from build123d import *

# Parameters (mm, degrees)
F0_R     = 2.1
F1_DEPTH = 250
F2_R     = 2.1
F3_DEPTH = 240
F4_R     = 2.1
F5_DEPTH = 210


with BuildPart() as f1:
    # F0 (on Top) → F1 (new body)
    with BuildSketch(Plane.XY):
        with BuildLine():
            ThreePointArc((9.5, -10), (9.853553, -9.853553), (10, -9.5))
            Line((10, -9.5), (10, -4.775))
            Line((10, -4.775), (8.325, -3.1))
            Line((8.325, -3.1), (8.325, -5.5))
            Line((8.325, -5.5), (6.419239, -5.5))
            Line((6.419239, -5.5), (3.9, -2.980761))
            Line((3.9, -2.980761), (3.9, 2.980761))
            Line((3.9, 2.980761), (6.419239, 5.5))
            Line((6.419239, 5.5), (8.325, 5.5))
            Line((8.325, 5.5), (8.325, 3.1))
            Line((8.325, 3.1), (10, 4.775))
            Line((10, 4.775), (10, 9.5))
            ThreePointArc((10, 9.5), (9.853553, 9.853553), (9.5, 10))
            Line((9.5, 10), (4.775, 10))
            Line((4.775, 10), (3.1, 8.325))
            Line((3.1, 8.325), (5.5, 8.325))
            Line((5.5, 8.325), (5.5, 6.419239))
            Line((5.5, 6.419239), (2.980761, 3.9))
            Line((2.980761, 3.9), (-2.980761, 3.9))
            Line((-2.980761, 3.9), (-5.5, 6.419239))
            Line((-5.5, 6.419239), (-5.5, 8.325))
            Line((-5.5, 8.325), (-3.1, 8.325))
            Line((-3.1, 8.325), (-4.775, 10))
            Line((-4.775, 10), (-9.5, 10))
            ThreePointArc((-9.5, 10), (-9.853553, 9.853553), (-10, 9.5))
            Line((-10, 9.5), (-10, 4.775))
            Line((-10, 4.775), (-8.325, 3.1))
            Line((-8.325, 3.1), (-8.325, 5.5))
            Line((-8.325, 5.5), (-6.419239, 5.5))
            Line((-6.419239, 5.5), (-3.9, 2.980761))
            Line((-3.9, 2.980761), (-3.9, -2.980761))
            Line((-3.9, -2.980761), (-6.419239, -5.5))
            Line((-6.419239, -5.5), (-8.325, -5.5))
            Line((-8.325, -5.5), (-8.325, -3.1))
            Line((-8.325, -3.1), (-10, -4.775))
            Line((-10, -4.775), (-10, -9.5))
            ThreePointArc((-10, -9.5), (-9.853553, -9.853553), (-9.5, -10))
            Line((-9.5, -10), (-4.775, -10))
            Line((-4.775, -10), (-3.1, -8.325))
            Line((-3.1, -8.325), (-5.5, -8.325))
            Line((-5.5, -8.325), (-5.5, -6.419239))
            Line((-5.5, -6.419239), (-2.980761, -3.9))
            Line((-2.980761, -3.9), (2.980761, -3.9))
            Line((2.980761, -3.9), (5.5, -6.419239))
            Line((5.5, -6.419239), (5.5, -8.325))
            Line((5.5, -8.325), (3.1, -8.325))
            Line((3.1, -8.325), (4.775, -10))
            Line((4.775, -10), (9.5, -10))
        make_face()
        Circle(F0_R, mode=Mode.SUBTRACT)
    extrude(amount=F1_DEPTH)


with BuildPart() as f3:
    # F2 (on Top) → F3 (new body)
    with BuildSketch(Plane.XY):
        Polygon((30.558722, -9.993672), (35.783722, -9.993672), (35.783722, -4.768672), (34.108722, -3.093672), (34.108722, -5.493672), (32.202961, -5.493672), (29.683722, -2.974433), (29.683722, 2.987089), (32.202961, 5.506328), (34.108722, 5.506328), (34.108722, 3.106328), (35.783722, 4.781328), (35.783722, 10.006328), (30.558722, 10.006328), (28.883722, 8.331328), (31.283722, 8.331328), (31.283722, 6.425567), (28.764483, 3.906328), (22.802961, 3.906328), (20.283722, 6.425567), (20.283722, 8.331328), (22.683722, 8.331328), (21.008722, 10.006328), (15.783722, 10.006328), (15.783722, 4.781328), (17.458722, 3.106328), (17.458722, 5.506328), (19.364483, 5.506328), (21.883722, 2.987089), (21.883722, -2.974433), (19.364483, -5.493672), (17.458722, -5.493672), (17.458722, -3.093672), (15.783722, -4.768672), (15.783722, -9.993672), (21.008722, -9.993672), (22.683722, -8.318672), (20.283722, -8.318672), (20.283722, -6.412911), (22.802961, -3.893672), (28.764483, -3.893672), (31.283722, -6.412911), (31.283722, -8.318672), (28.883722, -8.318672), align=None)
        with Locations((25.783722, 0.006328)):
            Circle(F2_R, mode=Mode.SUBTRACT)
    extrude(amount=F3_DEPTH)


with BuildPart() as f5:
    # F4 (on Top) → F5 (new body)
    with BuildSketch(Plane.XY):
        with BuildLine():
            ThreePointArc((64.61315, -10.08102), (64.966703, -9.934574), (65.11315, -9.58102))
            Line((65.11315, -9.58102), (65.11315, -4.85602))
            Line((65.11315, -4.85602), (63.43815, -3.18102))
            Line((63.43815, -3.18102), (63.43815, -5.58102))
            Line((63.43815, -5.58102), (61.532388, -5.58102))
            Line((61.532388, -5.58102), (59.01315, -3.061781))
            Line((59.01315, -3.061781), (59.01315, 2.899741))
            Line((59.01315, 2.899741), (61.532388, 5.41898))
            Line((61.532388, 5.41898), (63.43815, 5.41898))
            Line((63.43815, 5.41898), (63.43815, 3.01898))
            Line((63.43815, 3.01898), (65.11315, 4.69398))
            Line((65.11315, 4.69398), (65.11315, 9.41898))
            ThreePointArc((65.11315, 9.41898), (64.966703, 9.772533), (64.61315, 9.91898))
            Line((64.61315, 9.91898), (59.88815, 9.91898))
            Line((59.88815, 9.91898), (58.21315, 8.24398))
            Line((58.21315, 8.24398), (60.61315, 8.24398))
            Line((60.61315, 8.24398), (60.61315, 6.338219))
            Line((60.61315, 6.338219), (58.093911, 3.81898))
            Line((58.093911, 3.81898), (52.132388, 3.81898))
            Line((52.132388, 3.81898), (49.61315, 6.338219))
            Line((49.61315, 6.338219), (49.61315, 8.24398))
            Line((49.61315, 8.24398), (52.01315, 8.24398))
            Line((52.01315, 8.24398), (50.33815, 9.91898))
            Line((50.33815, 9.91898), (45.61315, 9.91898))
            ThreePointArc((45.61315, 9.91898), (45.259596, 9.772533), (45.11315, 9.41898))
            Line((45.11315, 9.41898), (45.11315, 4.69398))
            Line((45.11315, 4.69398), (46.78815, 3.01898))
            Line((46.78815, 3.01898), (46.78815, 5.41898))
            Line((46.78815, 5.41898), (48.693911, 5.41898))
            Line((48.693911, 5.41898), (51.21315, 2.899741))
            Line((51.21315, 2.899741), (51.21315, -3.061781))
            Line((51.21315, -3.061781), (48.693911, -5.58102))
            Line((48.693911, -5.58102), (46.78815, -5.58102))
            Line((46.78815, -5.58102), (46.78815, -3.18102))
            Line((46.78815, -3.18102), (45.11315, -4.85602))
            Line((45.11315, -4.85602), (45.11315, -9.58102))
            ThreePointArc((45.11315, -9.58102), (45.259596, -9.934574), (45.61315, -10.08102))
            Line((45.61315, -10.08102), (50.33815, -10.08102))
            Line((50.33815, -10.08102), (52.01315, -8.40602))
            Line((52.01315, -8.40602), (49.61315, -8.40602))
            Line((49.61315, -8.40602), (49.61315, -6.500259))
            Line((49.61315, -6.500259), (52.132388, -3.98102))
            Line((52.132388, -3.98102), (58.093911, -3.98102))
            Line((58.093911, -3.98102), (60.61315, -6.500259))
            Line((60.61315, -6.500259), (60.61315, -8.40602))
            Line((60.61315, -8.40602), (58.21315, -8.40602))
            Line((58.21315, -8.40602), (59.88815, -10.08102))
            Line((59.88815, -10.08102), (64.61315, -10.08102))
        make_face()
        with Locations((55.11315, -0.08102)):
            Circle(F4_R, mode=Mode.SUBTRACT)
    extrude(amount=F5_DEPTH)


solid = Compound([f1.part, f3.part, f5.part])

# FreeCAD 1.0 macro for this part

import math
import FreeCAD as App
import Part
import Sketcher

doc = App.newDocument("Part")
body = doc.addObject("PartDesign::Body", "Body")

sketch1 = doc.addObject("Sketcher::SketchObject", "Sketch")
body.addObject(sketch1)
sketch1.AttachmentSupport = (doc.XY_Plane, [""])
sketch1.MapMode = "FlatFace"
sketch1.addGeometry([
    Part.ArcOfCircle(Part.Circle(App.Vector(9.5, -9.5, 0), App.Vector(0, 0, 1), 0.5), math.radians(-90), math.radians(0)),
    Part.LineSegment(App.Vector(10, -9.5, 0), App.Vector(10, -4.8, 0)),
    Part.LineSegment(App.Vector(10, -4.8, 0), App.Vector(8.3, -3.1, 0)),
    Part.LineSegment(App.Vector(8.3, -3.1, 0), App.Vector(8.3, -5.5, 0)),
    Part.LineSegment(App.Vector(8.3, -5.5, 0), App.Vector(6.4, -5.5, 0)),
    Part.LineSegment(App.Vector(6.4, -5.5, 0), App.Vector(3.9, -3, 0)),
    Part.LineSegment(App.Vector(3.9, -3, 0), App.Vector(3.9, 3, 0)),
    Part.LineSegment(App.Vector(3.9, 3, 0), App.Vector(6.4, 5.5, 0)),
    Part.LineSegment(App.Vector(6.4, 5.5, 0), App.Vector(8.3, 5.5, 0)),
    Part.LineSegment(App.Vector(8.3, 5.5, 0), App.Vector(8.3, 3.1, 0)),
    Part.LineSegment(App.Vector(8.3, 3.1, 0), App.Vector(10, 4.8, 0)),
    Part.LineSegment(App.Vector(10, 4.8, 0), App.Vector(10, 9.5, 0)),
    Part.ArcOfCircle(Part.Circle(App.Vector(9.5, 9.5, 0), App.Vector(0, 0, 1), 0.5), math.radians(0), math.radians(90)),
    Part.LineSegment(App.Vector(9.5, 10, 0), App.Vector(4.8, 10, 0)),
    Part.LineSegment(App.Vector(4.8, 10, 0), App.Vector(3.1, 8.3, 0)),
    Part.LineSegment(App.Vector(3.1, 8.3, 0), App.Vector(5.5, 8.3, 0)),
    Part.LineSegment(App.Vector(5.5, 8.3, 0), App.Vector(5.5, 6.4, 0)),
    Part.LineSegment(App.Vector(5.5, 6.4, 0), App.Vector(3, 3.9, 0)),
    Part.LineSegment(App.Vector(3, 3.9, 0), App.Vector(-3, 3.9, 0)),
    Part.LineSegment(App.Vector(-3, 3.9, 0), App.Vector(-5.5, 6.4, 0)),
    Part.LineSegment(App.Vector(-5.5, 6.4, 0), App.Vector(-5.5, 8.3, 0)),
    Part.LineSegment(App.Vector(-5.5, 8.3, 0), App.Vector(-3.1, 8.3, 0)),
    Part.LineSegment(App.Vector(-3.1, 8.3, 0), App.Vector(-4.8, 10, 0)),
    Part.LineSegment(App.Vector(-4.8, 10, 0), App.Vector(-9.5, 10, 0)),
    Part.ArcOfCircle(Part.Circle(App.Vector(-9.5, 9.5, 0), App.Vector(0, 0, 1), 0.5), math.radians(90), math.radians(180)),
    Part.LineSegment(App.Vector(-10, 9.5, 0), App.Vector(-10, 4.8, 0)),
    Part.LineSegment(App.Vector(-10, 4.8, 0), App.Vector(-8.3, 3.1, 0)),
    Part.LineSegment(App.Vector(-8.3, 3.1, 0), App.Vector(-8.3, 5.5, 0)),
    Part.LineSegment(App.Vector(-8.3, 5.5, 0), App.Vector(-6.4, 5.5, 0)),
    Part.LineSegment(App.Vector(-6.4, 5.5, 0), App.Vector(-3.9, 3, 0)),
    Part.LineSegment(App.Vector(-3.9, 3, 0), App.Vector(-3.9, -3, 0)),
    Part.LineSegment(App.Vector(-3.9, -3, 0), App.Vector(-6.4, -5.5, 0)),
    Part.LineSegment(App.Vector(-6.4, -5.5, 0), App.Vector(-8.3, -5.5, 0)),
    Part.LineSegment(App.Vector(-8.3, -5.5, 0), App.Vector(-8.3, -3.1, 0)),
    Part.LineSegment(App.Vector(-8.3, -3.1, 0), App.Vector(-10, -4.8, 0)),
    Part.LineSegment(App.Vector(-10, -4.8, 0), App.Vector(-10, -9.5, 0)),
    Part.ArcOfCircle(Part.Circle(App.Vector(-9.5, -9.5, 0), App.Vector(0, 0, 1), 0.5), math.radians(-180), math.radians(-90)),
    Part.LineSegment(App.Vector(-9.5, -10, 0), App.Vector(-4.8, -10, 0)),
    Part.LineSegment(App.Vector(-4.8, -10, 0), App.Vector(-3.1, -8.3, 0)),
    Part.LineSegment(App.Vector(-3.1, -8.3, 0), App.Vector(-5.5, -8.3, 0)),
    Part.LineSegment(App.Vector(-5.5, -8.3, 0), App.Vector(-5.5, -6.4, 0)),
    Part.LineSegment(App.Vector(-5.5, -6.4, 0), App.Vector(-3, -3.9, 0)),
    Part.LineSegment(App.Vector(-3, -3.9, 0), App.Vector(3, -3.9, 0)),
    Part.LineSegment(App.Vector(3, -3.9, 0), App.Vector(5.5, -6.4, 0)),
    Part.LineSegment(App.Vector(5.5, -6.4, 0), App.Vector(5.5, -8.3, 0)),
    Part.LineSegment(App.Vector(5.5, -8.3, 0), App.Vector(3.1, -8.3, 0)),
    Part.LineSegment(App.Vector(3.1, -8.3, 0), App.Vector(4.8, -10, 0)),
    Part.LineSegment(App.Vector(4.8, -10, 0), App.Vector(9.5, -10, 0)),
    Part.Circle(App.Vector(0, 0, 0), App.Vector(0, 0, 1), 2.1),
], False)
sketch1.addConstraint([
    Sketcher.Constraint("Coincident", 0, 2, 1, 1),
    Sketcher.Constraint("Coincident", 1, 2, 2, 1),
    Sketcher.Constraint("Coincident", 2, 2, 3, 1),
    Sketcher.Constraint("Coincident", 3, 2, 4, 1),
    Sketcher.Constraint("Coincident", 4, 2, 5, 1),
    Sketcher.Constraint("Coincident", 5, 2, 6, 1),
    Sketcher.Constraint("Coincident", 6, 2, 7, 1),
    Sketcher.Constraint("Coincident", 7, 2, 8, 1),
    Sketcher.Constraint("Coincident", 8, 2, 9, 1),
    Sketcher.Constraint("Coincident", 9, 2, 10, 1),
    Sketcher.Constraint("Coincident", 10, 2, 11, 1),
    Sketcher.Constraint("Coincident", 11, 2, 12, 1),
    Sketcher.Constraint("Coincident", 12, 2, 13, 1),
    Sketcher.Constraint("Coincident", 13, 2, 14, 1),
    Sketcher.Constraint("Coincident", 14, 2, 15, 1),
    Sketcher.Constraint("Coincident", 15, 2, 16, 1),
    Sketcher.Constraint("Coincident", 16, 2, 17, 1),
    Sketcher.Constraint("Coincident", 17, 2, 18, 1),
    Sketcher.Constraint("Coincident", 18, 2, 19, 1),
    Sketcher.Constraint("Coincident", 19, 2, 20, 1),
    Sketcher.Constraint("Coincident", 20, 2, 21, 1),
    Sketcher.Constraint("Coincident", 21, 2, 22, 1),
    Sketcher.Constraint("Coincident", 22, 2, 23, 1),
    Sketcher.Constraint("Coincident", 23, 2, 24, 1),
    Sketcher.Constraint("Coincident", 24, 2, 25, 1),
    Sketcher.Constraint("Coincident", 25, 2, 26, 1),
    Sketcher.Constraint("Coincident", 26, 2, 27, 1),
    Sketcher.Constraint("Coincident", 27, 2, 28, 1),
    Sketcher.Constraint("Coincident", 28, 2, 29, 1),
    Sketcher.Constraint("Coincident", 29, 2, 30, 1),
    Sketcher.Constraint("Coincident", 30, 2, 31, 1),
    Sketcher.Constraint("Coincident", 31, 2, 32, 1),
    Sketcher.Constraint("Coincident", 32, 2, 33, 1),
    Sketcher.Constraint("Coincident", 33, 2, 34, 1),
    Sketcher.Constraint("Coincident", 34, 2, 35, 1),
    Sketcher.Constraint("Coincident", 35, 2, 36, 1),
    Sketcher.Constraint("Coincident", 36, 2, 37, 1),
    Sketcher.Constraint("Coincident", 37, 2, 38, 1),
    Sketcher.Constraint("Coincident", 38, 2, 39, 1),
    Sketcher.Constraint("Coincident", 39, 2, 40, 1),
    Sketcher.Constraint("Coincident", 40, 2, 41, 1),
    Sketcher.Constraint("Coincident", 41, 2, 42, 1),
    Sketcher.Constraint("Coincident", 42, 2, 43, 1),
    Sketcher.Constraint("Coincident", 43, 2, 44, 1),
    Sketcher.Constraint("Coincident", 44, 2, 45, 1),
    Sketcher.Constraint("Coincident", 45, 2, 46, 1),
    Sketcher.Constraint("Coincident", 46, 2, 47, 1),
    Sketcher.Constraint("Coincident", 47, 2, 0, 1),
    Sketcher.Constraint("Vertical", 1),
    Sketcher.Constraint("Vertical", 3),
    Sketcher.Constraint("Horizontal", 4),
    Sketcher.Constraint("Vertical", 6),
    Sketcher.Constraint("Horizontal", 8),
    Sketcher.Constraint("Vertical", 9),
    Sketcher.Constraint("Vertical", 11),
    Sketcher.Constraint("Horizontal", 13),
    Sketcher.Constraint("Horizontal", 15),
    Sketcher.Constraint("Vertical", 16),
    Sketcher.Constraint("Horizontal", 18),
    Sketcher.Constraint("Vertical", 20),
    Sketcher.Constraint("Horizontal", 21),
    Sketcher.Constraint("Horizontal", 23),
    Sketcher.Constraint("Vertical", 25),
    Sketcher.Constraint("Vertical", 27),
    Sketcher.Constraint("Horizontal", 28),
    Sketcher.Constraint("Vertical", 30),
    Sketcher.Constraint("Horizontal", 32),
    Sketcher.Constraint("Vertical", 33),
    Sketcher.Constraint("Vertical", 35),
    Sketcher.Constraint("Horizontal", 37),
    Sketcher.Constraint("Horizontal", 39),
    Sketcher.Constraint("Vertical", 40),
    Sketcher.Constraint("Horizontal", 42),
    Sketcher.Constraint("Vertical", 44),
    Sketcher.Constraint("Horizontal", 45),
    Sketcher.Constraint("Horizontal", 47),
    Sketcher.Constraint("Coincident", 48, 3, -1, 1),
    Sketcher.Constraint("Equal", 0, 12),
    Sketcher.Constraint("Equal", 12, 24),
    Sketcher.Constraint("Equal", 24, 36),
    Sketcher.Constraint("Symmetric", 0, 3, 24, 3, -1, 1),
    Sketcher.Constraint("Symmetric", 12, 3, 36, 3, -1, 1),
    Sketcher.Constraint("Symmetric", 2, 2, 26, 2, -1, 1),
    Sketcher.Constraint("Symmetric", 4, 2, 28, 2, -1, 1),
    Sketcher.Constraint("Symmetric", 5, 2, 29, 2, -1, 1),
    Sketcher.Constraint("Symmetric", 7, 2, 31, 2, -1, 1),
    Sketcher.Constraint("Symmetric", 9, 2, 33, 2, -1, 1),
    Sketcher.Constraint("Symmetric", 14, 2, 38, 2, -1, 1),
    Sketcher.Constraint("Symmetric", 16, 2, 40, 2, -1, 1),
    Sketcher.Constraint("Symmetric", 17, 2, 41, 2, -1, 1),
    Sketcher.Constraint("Symmetric", 19, 2, 43, 2, -1, 1),
    Sketcher.Constraint("Symmetric", 21, 2, 45, 2, -1, 1),
    Sketcher.Constraint("Symmetric", 12, 3, 24, 3, -2),
    Sketcher.Constraint("Symmetric", 16, 2, 19, 2, -2),
    Sketcher.Constraint("Symmetric", 14, 2, 21, 2, -2),
    Sketcher.Constraint("Symmetric", 9, 2, 26, 2, -2),
    Sketcher.Constraint("Symmetric", 7, 2, 28, 2, -2),
    Sketcher.Constraint("Parallel", 2, 5),
    Sketcher.Constraint("Perpendicular", 5, 7),
    Sketcher.Constraint("Parallel", 7, 10),
    Sketcher.Constraint("Parallel", 10, 14),
    Sketcher.Constraint("Parallel", 14, 17),
    Sketcher.Constraint("Perpendicular", 17, 19),
    Sketcher.Constraint("Parallel", 19, 22),
    Sketcher.Constraint("Parallel", 22, 26),
    Sketcher.Constraint("Perpendicular", 29, 31),
    Sketcher.Constraint("Parallel", 31, 34),
    Sketcher.Constraint("Parallel", 34, 38),
    Sketcher.Constraint("Perpendicular", 41, 43),
    Sketcher.Constraint("Parallel", 43, 46),
    Sketcher.Constraint("Horizontal", 36, 3, 0, 2),
    Sketcher.Constraint("Horizontal", 24, 3, 11, 2),
    Sketcher.Constraint("Horizontal", 11, 2, 24, 2),
    Sketcher.Constraint("Horizontal", 10, 2, 25, 2),
    Sketcher.Constraint("Horizontal", 0, 2, 35, 2),
    Sketcher.Constraint("Vertical", 0, 3, 12, 2),
    Sketcher.Constraint("Vertical", 36, 3, 23, 2),
    Sketcher.Constraint("Vertical", 23, 2, 36, 2),
    Sketcher.Constraint("Vertical", 12, 2, 47, 2),
    Sketcher.Constraint("Equal", 47, 1),
    Sketcher.Constraint("Equal", 45, 3),
    Sketcher.Constraint("Equal", 42, 6),
    Sketcher.Constraint("Equal", 32, 16),
    Sketcher.Constraint("Equal", 10, 14),
    Sketcher.Constraint("Equal", 7, 17),
    Sketcher.Constraint("Diameter", 48, 4.2),
    Sketcher.Constraint("Radius", 0, 0.500001),
    Sketcher.Constraint("DistanceX", 15, 1, 15, 2, 2.4),
    Sketcher.Constraint("DistanceX", -1, 1, 0, 2, 10.0),
    Sketcher.Constraint("DistanceY", 0, 3, 3, 2, 3.999999),
    Sketcher.Constraint("DistanceX", -1, 1, 5, 2, 3.9),
    Sketcher.Constraint("DistanceX", 13, 2, 13, 1, 4.725),
    Sketcher.Constraint("DistanceX", 4, 2, 4, 1, 1.905761),
])
pad1 = doc.addObject("PartDesign::Pad", "Pad")
body.addObject(pad1)
pad1.Profile = sketch1
pad1.Length = 250
body2 = doc.addObject("PartDesign::Body", "Body001")

sketch2 = doc.addObject("Sketcher::SketchObject", "Sketch001")
body2.addObject(sketch2)
sketch2.AttachmentSupport = (doc.getObject("XY_Plane001"), [""])
sketch2.MapMode = "FlatFace"
sketch2.addGeometry([
    Part.LineSegment(App.Vector(30.6, -10, 0), App.Vector(35.8, -10, 0)),
    Part.LineSegment(App.Vector(35.8, -10, 0), App.Vector(35.8, -4.8, 0)),
    Part.LineSegment(App.Vector(35.8, -4.8, 0), App.Vector(34.1, -3.1, 0)),
    Part.LineSegment(App.Vector(34.1, -3.1, 0), App.Vector(34.1, -5.5, 0)),
    Part.LineSegment(App.Vector(34.1, -5.5, 0), App.Vector(32.2, -5.5, 0)),
    Part.LineSegment(App.Vector(32.2, -5.5, 0), App.Vector(29.7, -3, 0)),
    Part.LineSegment(App.Vector(29.7, -3, 0), App.Vector(29.7, 3, 0)),
    Part.LineSegment(App.Vector(29.7, 3, 0), App.Vector(32.2, 5.5, 0)),
    Part.LineSegment(App.Vector(32.2, 5.5, 0), App.Vector(34.1, 5.5, 0)),
    Part.LineSegment(App.Vector(34.1, 5.5, 0), App.Vector(34.1, 3.1, 0)),
    Part.LineSegment(App.Vector(34.1, 3.1, 0), App.Vector(35.8, 4.8, 0)),
    Part.LineSegment(App.Vector(35.8, 4.8, 0), App.Vector(35.8, 10, 0)),
    Part.LineSegment(App.Vector(35.8, 10, 0), App.Vector(30.6, 10, 0)),
    Part.LineSegment(App.Vector(30.6, 10, 0), App.Vector(28.9, 8.3, 0)),
    Part.LineSegment(App.Vector(28.9, 8.3, 0), App.Vector(31.3, 8.3, 0)),
    Part.LineSegment(App.Vector(31.3, 8.3, 0), App.Vector(31.3, 6.4, 0)),
    Part.LineSegment(App.Vector(31.3, 6.4, 0), App.Vector(28.8, 3.9, 0)),
    Part.LineSegment(App.Vector(28.8, 3.9, 0), App.Vector(22.8, 3.9, 0)),
    Part.LineSegment(App.Vector(22.8, 3.9, 0), App.Vector(20.3, 6.4, 0)),
    Part.LineSegment(App.Vector(20.3, 6.4, 0), App.Vector(20.3, 8.3, 0)),
    Part.LineSegment(App.Vector(20.3, 8.3, 0), App.Vector(22.7, 8.3, 0)),
    Part.LineSegment(App.Vector(22.7, 8.3, 0), App.Vector(21, 10, 0)),
    Part.LineSegment(App.Vector(21, 10, 0), App.Vector(15.8, 10, 0)),
    Part.LineSegment(App.Vector(15.8, 10, 0), App.Vector(15.8, 4.8, 0)),
    Part.LineSegment(App.Vector(15.8, 4.8, 0), App.Vector(17.5, 3.1, 0)),
    Part.LineSegment(App.Vector(17.5, 3.1, 0), App.Vector(17.5, 5.5, 0)),
    Part.LineSegment(App.Vector(17.5, 5.5, 0), App.Vector(19.4, 5.5, 0)),
    Part.LineSegment(App.Vector(19.4, 5.5, 0), App.Vector(21.9, 3, 0)),
    Part.LineSegment(App.Vector(21.9, 3, 0), App.Vector(21.9, -3, 0)),
    Part.LineSegment(App.Vector(21.9, -3, 0), App.Vector(19.4, -5.5, 0)),
    Part.LineSegment(App.Vector(19.4, -5.5, 0), App.Vector(17.5, -5.5, 0)),
    Part.LineSegment(App.Vector(17.5, -5.5, 0), App.Vector(17.5, -3.1, 0)),
    Part.LineSegment(App.Vector(17.5, -3.1, 0), App.Vector(15.8, -4.8, 0)),
    Part.LineSegment(App.Vector(15.8, -4.8, 0), App.Vector(15.8, -10, 0)),
    Part.LineSegment(App.Vector(15.8, -10, 0), App.Vector(21, -10, 0)),
    Part.LineSegment(App.Vector(21, -10, 0), App.Vector(22.7, -8.3, 0)),
    Part.LineSegment(App.Vector(22.7, -8.3, 0), App.Vector(20.3, -8.3, 0)),
    Part.LineSegment(App.Vector(20.3, -8.3, 0), App.Vector(20.3, -6.4, 0)),
    Part.LineSegment(App.Vector(20.3, -6.4, 0), App.Vector(22.8, -3.9, 0)),
    Part.LineSegment(App.Vector(22.8, -3.9, 0), App.Vector(28.8, -3.9, 0)),
    Part.LineSegment(App.Vector(28.8, -3.9, 0), App.Vector(31.3, -6.4, 0)),
    Part.LineSegment(App.Vector(31.3, -6.4, 0), App.Vector(31.3, -8.3, 0)),
    Part.LineSegment(App.Vector(31.3, -8.3, 0), App.Vector(28.9, -8.3, 0)),
    Part.LineSegment(App.Vector(28.9, -8.3, 0), App.Vector(30.6, -10, 0)),
    Part.Circle(App.Vector(25.8, 0, 0), App.Vector(0, 0, 1), 2.1),
], False)
sketch2.addConstraint([
    Sketcher.Constraint("Coincident", 0, 2, 1, 1),
    Sketcher.Constraint("Coincident", 1, 2, 2, 1),
    Sketcher.Constraint("Coincident", 2, 2, 3, 1),
    Sketcher.Constraint("Coincident", 3, 2, 4, 1),
    Sketcher.Constraint("Coincident", 4, 2, 5, 1),
    Sketcher.Constraint("Coincident", 5, 2, 6, 1),
    Sketcher.Constraint("Coincident", 6, 2, 7, 1),
    Sketcher.Constraint("Coincident", 7, 2, 8, 1),
    Sketcher.Constraint("Coincident", 8, 2, 9, 1),
    Sketcher.Constraint("Coincident", 9, 2, 10, 1),
    Sketcher.Constraint("Coincident", 10, 2, 11, 1),
    Sketcher.Constraint("Coincident", 11, 2, 12, 1),
    Sketcher.Constraint("Coincident", 12, 2, 13, 1),
    Sketcher.Constraint("Coincident", 13, 2, 14, 1),
    Sketcher.Constraint("Coincident", 14, 2, 15, 1),
    Sketcher.Constraint("Coincident", 15, 2, 16, 1),
    Sketcher.Constraint("Coincident", 16, 2, 17, 1),
    Sketcher.Constraint("Coincident", 17, 2, 18, 1),
    Sketcher.Constraint("Coincident", 18, 2, 19, 1),
    Sketcher.Constraint("Coincident", 19, 2, 20, 1),
    Sketcher.Constraint("Coincident", 20, 2, 21, 1),
    Sketcher.Constraint("Coincident", 21, 2, 22, 1),
    Sketcher.Constraint("Coincident", 22, 2, 23, 1),
    Sketcher.Constraint("Coincident", 23, 2, 24, 1),
    Sketcher.Constraint("Coincident", 24, 2, 25, 1),
    Sketcher.Constraint("Coincident", 25, 2, 26, 1),
    Sketcher.Constraint("Coincident", 26, 2, 27, 1),
    Sketcher.Constraint("Coincident", 27, 2, 28, 1),
    Sketcher.Constraint("Coincident", 28, 2, 29, 1),
    Sketcher.Constraint("Coincident", 29, 2, 30, 1),
    Sketcher.Constraint("Coincident", 30, 2, 31, 1),
    Sketcher.Constraint("Coincident", 31, 2, 32, 1),
    Sketcher.Constraint("Coincident", 32, 2, 33, 1),
    Sketcher.Constraint("Coincident", 33, 2, 34, 1),
    Sketcher.Constraint("Coincident", 34, 2, 35, 1),
    Sketcher.Constraint("Coincident", 35, 2, 36, 1),
    Sketcher.Constraint("Coincident", 36, 2, 37, 1),
    Sketcher.Constraint("Coincident", 37, 2, 38, 1),
    Sketcher.Constraint("Coincident", 38, 2, 39, 1),
    Sketcher.Constraint("Coincident", 39, 2, 40, 1),
    Sketcher.Constraint("Coincident", 40, 2, 41, 1),
    Sketcher.Constraint("Coincident", 41, 2, 42, 1),
    Sketcher.Constraint("Coincident", 42, 2, 43, 1),
    Sketcher.Constraint("Coincident", 43, 2, 0, 1),
    Sketcher.Constraint("Horizontal", 0),
    Sketcher.Constraint("Vertical", 1),
    Sketcher.Constraint("Vertical", 3),
    Sketcher.Constraint("Horizontal", 4),
    Sketcher.Constraint("Vertical", 6),
    Sketcher.Constraint("Horizontal", 8),
    Sketcher.Constraint("Vertical", 9),
    Sketcher.Constraint("Vertical", 11),
    Sketcher.Constraint("Horizontal", 12),
    Sketcher.Constraint("Horizontal", 14),
    Sketcher.Constraint("Vertical", 15),
    Sketcher.Constraint("Horizontal", 17),
    Sketcher.Constraint("Vertical", 19),
    Sketcher.Constraint("Horizontal", 20),
    Sketcher.Constraint("Horizontal", 22),
    Sketcher.Constraint("Vertical", 23),
    Sketcher.Constraint("Vertical", 25),
    Sketcher.Constraint("Horizontal", 26),
    Sketcher.Constraint("Vertical", 28),
    Sketcher.Constraint("Horizontal", 30),
    Sketcher.Constraint("Vertical", 31),
    Sketcher.Constraint("Vertical", 33),
    Sketcher.Constraint("Horizontal", 34),
    Sketcher.Constraint("Horizontal", 36),
    Sketcher.Constraint("Vertical", 37),
    Sketcher.Constraint("Horizontal", 39),
    Sketcher.Constraint("Vertical", 41),
    Sketcher.Constraint("Horizontal", 42),
    Sketcher.Constraint("Parallel", 2, 5),
    Sketcher.Constraint("Perpendicular", 5, 7),
    Sketcher.Constraint("Parallel", 7, 10),
    Sketcher.Constraint("Parallel", 10, 13),
    Sketcher.Constraint("Parallel", 13, 16),
    Sketcher.Constraint("Perpendicular", 16, 18),
    Sketcher.Constraint("Parallel", 18, 21),
    Sketcher.Constraint("Parallel", 21, 24),
    Sketcher.Constraint("Parallel", 24, 27),
    Sketcher.Constraint("Perpendicular", 27, 29),
    Sketcher.Constraint("Parallel", 29, 32),
    Sketcher.Constraint("Parallel", 32, 35),
    Sketcher.Constraint("Parallel", 35, 38),
    Sketcher.Constraint("Perpendicular", 38, 40),
    Sketcher.Constraint("Parallel", 40, 43),
    Sketcher.Constraint("Horizontal", 15, 2, 18, 2),
    Sketcher.Constraint("Horizontal", 14, 2, 19, 2),
    Sketcher.Constraint("Horizontal", 12, 2, 21, 2),
    Sketcher.Constraint("Horizontal", 10, 2, 23, 2),
    Sketcher.Constraint("Horizontal", 9, 2, 24, 2),
    Sketcher.Constraint("Horizontal", 8, 2, 25, 2),
    Sketcher.Constraint("Horizontal", 6, 2, 27, 2),
    Sketcher.Constraint("Horizontal", 5, 2, 28, 2),
    Sketcher.Constraint("Horizontal", 4, 2, 29, 2),
    Sketcher.Constraint("Horizontal", 2, 2, 31, 2),
    Sketcher.Constraint("Horizontal", 1, 2, 32, 2),
    Sketcher.Constraint("Horizontal", 0, 2, 33, 2),
    Sketcher.Constraint("Horizontal", 37, 2, 40, 2),
    Sketcher.Constraint("Horizontal", 36, 2, 41, 2),
    Sketcher.Constraint("Vertical", 4, 2, 7, 2),
    Sketcher.Constraint("Vertical", 3, 2, 8, 2),
    Sketcher.Constraint("Vertical", 1, 2, 10, 2),
    Sketcher.Constraint("Vertical", 26, 2, 29, 2),
    Sketcher.Constraint("Vertical", 25, 2, 30, 2),
    Sketcher.Constraint("Vertical", 21, 2, 34, 2),
    Sketcher.Constraint("Vertical", 20, 2, 35, 2),
    Sketcher.Constraint("Vertical", 19, 2, 36, 2),
    Sketcher.Constraint("Vertical", 17, 2, 38, 2),
    Sketcher.Constraint("Vertical", 16, 2, 39, 2),
    Sketcher.Constraint("Vertical", 13, 2, 42, 2),
    Sketcher.Constraint("Equal", 14, 20),
    Sketcher.Constraint("Equal", 12, 22),
    Sketcher.Constraint("Equal", 8, 26),
    Sketcher.Constraint("Equal", 34, 1),
    Sketcher.Constraint("Equal", 42, 3),
    Sketcher.Constraint("Equal", 39, 6),
    Sketcher.Constraint("Equal", 3, 9),
    Sketcher.Constraint("Equal", 1, 11),
    Sketcher.Constraint("Equal", 30, 15),
    Sketcher.Constraint("Equal", 19, 37),
    Sketcher.Constraint("Equal", 10, 13),
    Sketcher.Constraint("Equal", 7, 16),
    Sketcher.Constraint("Diameter", 44, 4.2),
    Sketcher.Constraint("DistanceX", 14, 1, 14, 2, 2.4),
    Sketcher.Constraint("DistanceX", 44, 3, 0, 2, 10.0),
    Sketcher.Constraint("DistanceY", 0, 2, 44, 3, 10.0),
    Sketcher.Constraint("DistanceY", 0, 2, 2, 2, 6.9),
    Sketcher.Constraint("DistanceX", 44, 3, 5, 2, 3.9),
    Sketcher.Constraint("DistanceY", 44, 3, 7, 2, 5.5),
    Sketcher.Constraint("DistanceX", 0, 1, 0, 2, 5.225),
    Sketcher.Constraint("DistanceX", 4, 2, 4, 1, 1.905761),
    Sketcher.Constraint("DistanceY", -1, 1, 44, 3, 0.006328),
    Sketcher.Constraint("DistanceX", -1, 1, 0, 2, 35.783722),
])
pad2 = doc.addObject("PartDesign::Pad", "Pad001")
body2.addObject(pad2)
pad2.Profile = sketch2
pad2.Length = 240
body3 = doc.addObject("PartDesign::Body", "Body002")

sketch3 = doc.addObject("Sketcher::SketchObject", "Sketch002")
body3.addObject(sketch3)
sketch3.AttachmentSupport = (doc.getObject("XY_Plane002"), [""])
sketch3.MapMode = "FlatFace"
sketch3.addGeometry([
    Part.ArcOfCircle(Part.Circle(App.Vector(64.61, -9.58, 0), App.Vector(0, 0, 1), 0.5), math.radians(-90), math.radians(0)),
    Part.LineSegment(App.Vector(65.11, -9.58, 0), App.Vector(65.11, -4.86, 0)),
    Part.LineSegment(App.Vector(65.11, -4.86, 0), App.Vector(63.44, -3.18, 0)),
    Part.LineSegment(App.Vector(63.44, -3.18, 0), App.Vector(63.44, -5.58, 0)),
    Part.LineSegment(App.Vector(63.44, -5.58, 0), App.Vector(61.53, -5.58, 0)),
    Part.LineSegment(App.Vector(61.53, -5.58, 0), App.Vector(59.01, -3.06, 0)),
    Part.LineSegment(App.Vector(59.01, -3.06, 0), App.Vector(59.01, 2.9, 0)),
    Part.LineSegment(App.Vector(59.01, 2.9, 0), App.Vector(61.53, 5.42, 0)),
    Part.LineSegment(App.Vector(61.53, 5.42, 0), App.Vector(63.44, 5.42, 0)),
    Part.LineSegment(App.Vector(63.44, 5.42, 0), App.Vector(63.44, 3.02, 0)),
    Part.LineSegment(App.Vector(63.44, 3.02, 0), App.Vector(65.11, 4.69, 0)),
    Part.LineSegment(App.Vector(65.11, 4.69, 0), App.Vector(65.11, 9.42, 0)),
    Part.ArcOfCircle(Part.Circle(App.Vector(64.61, 9.42, 0), App.Vector(0, 0, 1), 0.5), math.radians(0), math.radians(90)),
    Part.LineSegment(App.Vector(64.61, 9.92, 0), App.Vector(59.89, 9.92, 0)),
    Part.LineSegment(App.Vector(59.89, 9.92, 0), App.Vector(58.21, 8.24, 0)),
    Part.LineSegment(App.Vector(58.21, 8.24, 0), App.Vector(60.61, 8.24, 0)),
    Part.LineSegment(App.Vector(60.61, 8.24, 0), App.Vector(60.61, 6.34, 0)),
    Part.LineSegment(App.Vector(60.61, 6.34, 0), App.Vector(58.09, 3.82, 0)),
    Part.LineSegment(App.Vector(58.09, 3.82, 0), App.Vector(52.13, 3.82, 0)),
    Part.LineSegment(App.Vector(52.13, 3.82, 0), App.Vector(49.61, 6.34, 0)),
    Part.LineSegment(App.Vector(49.61, 6.34, 0), App.Vector(49.61, 8.24, 0)),
    Part.LineSegment(App.Vector(49.61, 8.24, 0), App.Vector(52.01, 8.24, 0)),
    Part.LineSegment(App.Vector(52.01, 8.24, 0), App.Vector(50.34, 9.92, 0)),
    Part.LineSegment(App.Vector(50.34, 9.92, 0), App.Vector(45.61, 9.92, 0)),
    Part.ArcOfCircle(Part.Circle(App.Vector(45.61, 9.42, 0), App.Vector(0, 0, 1), 0.5), math.radians(90), math.radians(180)),
    Part.LineSegment(App.Vector(45.11, 9.42, 0), App.Vector(45.11, 4.69, 0)),
    Part.LineSegment(App.Vector(45.11, 4.69, 0), App.Vector(46.79, 3.02, 0)),
    Part.LineSegment(App.Vector(46.79, 3.02, 0), App.Vector(46.79, 5.42, 0)),
    Part.LineSegment(App.Vector(46.79, 5.42, 0), App.Vector(48.69, 5.42, 0)),
    Part.LineSegment(App.Vector(48.69, 5.42, 0), App.Vector(51.21, 2.9, 0)),
    Part.LineSegment(App.Vector(51.21, 2.9, 0), App.Vector(51.21, -3.06, 0)),
    Part.LineSegment(App.Vector(51.21, -3.06, 0), App.Vector(48.69, -5.58, 0)),
    Part.LineSegment(App.Vector(48.69, -5.58, 0), App.Vector(46.79, -5.58, 0)),
    Part.LineSegment(App.Vector(46.79, -5.58, 0), App.Vector(46.79, -3.18, 0)),
    Part.LineSegment(App.Vector(46.79, -3.18, 0), App.Vector(45.11, -4.86, 0)),
    Part.LineSegment(App.Vector(45.11, -4.86, 0), App.Vector(45.11, -9.58, 0)),
    Part.ArcOfCircle(Part.Circle(App.Vector(45.61, -9.58, 0), App.Vector(0, 0, 1), 0.5), math.radians(180), math.radians(270)),
    Part.LineSegment(App.Vector(45.61, -10.08, 0), App.Vector(50.34, -10.08, 0)),
    Part.LineSegment(App.Vector(50.34, -10.08, 0), App.Vector(52.01, -8.41, 0)),
    Part.LineSegment(App.Vector(52.01, -8.41, 0), App.Vector(49.61, -8.41, 0)),
    Part.LineSegment(App.Vector(49.61, -8.41, 0), App.Vector(49.61, -6.5, 0)),
    Part.LineSegment(App.Vector(49.61, -6.5, 0), App.Vector(52.13, -3.98, 0)),
    Part.LineSegment(App.Vector(52.13, -3.98, 0), App.Vector(58.09, -3.98, 0)),
    Part.LineSegment(App.Vector(58.09, -3.98, 0), App.Vector(60.61, -6.5, 0)),
    Part.LineSegment(App.Vector(60.61, -6.5, 0), App.Vector(60.61, -8.41, 0)),
    Part.LineSegment(App.Vector(60.61, -8.41, 0), App.Vector(58.21, -8.41, 0)),
    Part.LineSegment(App.Vector(58.21, -8.41, 0), App.Vector(59.89, -10.08, 0)),
    Part.LineSegment(App.Vector(59.89, -10.08, 0), App.Vector(64.61, -10.08, 0)),
    Part.Circle(App.Vector(55.11, -0.08, 0), App.Vector(0, 0, 1), 2.1),
], False)
sketch3.addConstraint([
    Sketcher.Constraint("Tangent", 0, 2, 1, 1),
    Sketcher.Constraint("Coincident", 1, 2, 2, 1),
    Sketcher.Constraint("Coincident", 2, 2, 3, 1),
    Sketcher.Constraint("Coincident", 3, 2, 4, 1),
    Sketcher.Constraint("Coincident", 4, 2, 5, 1),
    Sketcher.Constraint("Coincident", 5, 2, 6, 1),
    Sketcher.Constraint("Coincident", 6, 2, 7, 1),
    Sketcher.Constraint("Coincident", 7, 2, 8, 1),
    Sketcher.Constraint("Coincident", 8, 2, 9, 1),
    Sketcher.Constraint("Coincident", 9, 2, 10, 1),
    Sketcher.Constraint("Coincident", 10, 2, 11, 1),
    Sketcher.Constraint("Coincident", 11, 2, 12, 1),
    Sketcher.Constraint("Coincident", 12, 2, 13, 1),
    Sketcher.Constraint("Coincident", 13, 2, 14, 1),
    Sketcher.Constraint("Coincident", 14, 2, 15, 1),
    Sketcher.Constraint("Coincident", 15, 2, 16, 1),
    Sketcher.Constraint("Coincident", 16, 2, 17, 1),
    Sketcher.Constraint("Coincident", 17, 2, 18, 1),
    Sketcher.Constraint("Coincident", 18, 2, 19, 1),
    Sketcher.Constraint("Coincident", 19, 2, 20, 1),
    Sketcher.Constraint("Coincident", 20, 2, 21, 1),
    Sketcher.Constraint("Coincident", 21, 2, 22, 1),
    Sketcher.Constraint("Coincident", 22, 2, 23, 1),
    Sketcher.Constraint("Tangent", 23, 2, 24, 1),
    Sketcher.Constraint("Tangent", 24, 2, 25, 1),
    Sketcher.Constraint("Coincident", 25, 2, 26, 1),
    Sketcher.Constraint("Coincident", 26, 2, 27, 1),
    Sketcher.Constraint("Coincident", 27, 2, 28, 1),
    Sketcher.Constraint("Coincident", 28, 2, 29, 1),
    Sketcher.Constraint("Coincident", 29, 2, 30, 1),
    Sketcher.Constraint("Coincident", 30, 2, 31, 1),
    Sketcher.Constraint("Coincident", 31, 2, 32, 1),
    Sketcher.Constraint("Coincident", 32, 2, 33, 1),
    Sketcher.Constraint("Coincident", 33, 2, 34, 1),
    Sketcher.Constraint("Coincident", 34, 2, 35, 1),
    Sketcher.Constraint("Coincident", 35, 2, 36, 1),
    Sketcher.Constraint("Coincident", 36, 2, 37, 1),
    Sketcher.Constraint("Coincident", 37, 2, 38, 1),
    Sketcher.Constraint("Coincident", 38, 2, 39, 1),
    Sketcher.Constraint("Coincident", 39, 2, 40, 1),
    Sketcher.Constraint("Coincident", 40, 2, 41, 1),
    Sketcher.Constraint("Coincident", 41, 2, 42, 1),
    Sketcher.Constraint("Coincident", 42, 2, 43, 1),
    Sketcher.Constraint("Coincident", 43, 2, 44, 1),
    Sketcher.Constraint("Coincident", 44, 2, 45, 1),
    Sketcher.Constraint("Coincident", 45, 2, 46, 1),
    Sketcher.Constraint("Coincident", 46, 2, 47, 1),
    Sketcher.Constraint("Tangent", 47, 2, 0, 1),
    Sketcher.Constraint("Vertical", 1),
    Sketcher.Constraint("Vertical", 3),
    Sketcher.Constraint("Horizontal", 4),
    Sketcher.Constraint("Vertical", 6),
    Sketcher.Constraint("Horizontal", 8),
    Sketcher.Constraint("Vertical", 9),
    Sketcher.Constraint("Vertical", 11),
    Sketcher.Constraint("Horizontal", 13),
    Sketcher.Constraint("Horizontal", 15),
    Sketcher.Constraint("Vertical", 16),
    Sketcher.Constraint("Horizontal", 18),
    Sketcher.Constraint("Vertical", 20),
    Sketcher.Constraint("Horizontal", 21),
    Sketcher.Constraint("Horizontal", 23),
    Sketcher.Constraint("Vertical", 25),
    Sketcher.Constraint("Vertical", 27),
    Sketcher.Constraint("Horizontal", 28),
    Sketcher.Constraint("Vertical", 30),
    Sketcher.Constraint("Horizontal", 32),
    Sketcher.Constraint("Vertical", 33),
    Sketcher.Constraint("Vertical", 35),
    Sketcher.Constraint("Horizontal", 37),
    Sketcher.Constraint("Horizontal", 39),
    Sketcher.Constraint("Vertical", 40),
    Sketcher.Constraint("Horizontal", 42),
    Sketcher.Constraint("Vertical", 44),
    Sketcher.Constraint("Horizontal", 45),
    Sketcher.Constraint("Horizontal", 47),
    Sketcher.Constraint("Equal", 0, 12),
    Sketcher.Constraint("Equal", 12, 24),
    Sketcher.Constraint("Equal", 24, 36),
    Sketcher.Constraint("Parallel", 2, 5),
    Sketcher.Constraint("Perpendicular", 5, 7),
    Sketcher.Constraint("Parallel", 7, 10),
    Sketcher.Constraint("Parallel", 10, 14),
    Sketcher.Constraint("Parallel", 14, 17),
    Sketcher.Constraint("Perpendicular", 17, 19),
    Sketcher.Constraint("Parallel", 19, 22),
    Sketcher.Constraint("Parallel", 22, 26),
    Sketcher.Constraint("Parallel", 26, 29),
    Sketcher.Constraint("Perpendicular", 29, 31),
    Sketcher.Constraint("Parallel", 31, 34),
    Sketcher.Constraint("Parallel", 34, 38),
    Sketcher.Constraint("Parallel", 38, 41),
    Sketcher.Constraint("Perpendicular", 41, 43),
    Sketcher.Constraint("Parallel", 43, 46),
    Sketcher.Constraint("Horizontal", 12, 3, 24, 3),
    Sketcher.Constraint("Horizontal", 0, 3, 36, 3),
    Sketcher.Constraint("Horizontal", 24, 3, 11, 2),
    Sketcher.Constraint("Horizontal", 16, 2, 19, 2),
    Sketcher.Constraint("Horizontal", 15, 2, 20, 2),
    Sketcher.Constraint("Horizontal", 10, 2, 25, 2),
    Sketcher.Constraint("Horizontal", 9, 2, 26, 2),
    Sketcher.Constraint("Horizontal", 8, 2, 27, 2),
    Sketcher.Constraint("Horizontal", 6, 2, 29, 2),
    Sketcher.Constraint("Horizontal", 5, 2, 30, 2),
    Sketcher.Constraint("Horizontal", 4, 2, 31, 2),
    Sketcher.Constraint("Horizontal", 2, 2, 33, 2),
    Sketcher.Constraint("Horizontal", 1, 2, 34, 2),
    Sketcher.Constraint("Horizontal", 0, 2, 35, 2),
    Sketcher.Constraint("Horizontal", 40, 2, 43, 2),
    Sketcher.Constraint("Horizontal", 39, 2, 44, 2),
    Sketcher.Constraint("Vertical", 0, 3, 12, 3),
    Sketcher.Constraint("Vertical", 24, 3, 36, 3),
    Sketcher.Constraint("Vertical", 4, 2, 7, 2),
    Sketcher.Constraint("Vertical", 3, 2, 8, 2),
    Sketcher.Constraint("Vertical", 0, 3, 12, 2),
    Sketcher.Constraint("Vertical", 28, 2, 31, 2),
    Sketcher.Constraint("Vertical", 23, 2, 36, 2),
    Sketcher.Constraint("Vertical", 22, 2, 37, 2),
    Sketcher.Constraint("Vertical", 21, 2, 38, 2),
    Sketcher.Constraint("Vertical", 20, 2, 39, 2),
    Sketcher.Constraint("Vertical", 18, 2, 41, 2),
    Sketcher.Constraint("Vertical", 17, 2, 42, 2),
    Sketcher.Constraint("Vertical", 14, 2, 45, 2),
    Sketcher.Constraint("Equal", 15, 21),
    Sketcher.Constraint("Equal", 13, 23),
    Sketcher.Constraint("Equal", 8, 28),
    Sketcher.Constraint("Equal", 47, 1),
    Sketcher.Constraint("Equal", 45, 3),
    Sketcher.Constraint("Equal", 42, 6),
    Sketcher.Constraint("Equal", 3, 9),
    Sketcher.Constraint("Equal", 1, 11),
    Sketcher.Constraint("Equal", 32, 16),
    Sketcher.Constraint("Equal", 20, 40),
    Sketcher.Constraint("Equal", 10, 14),
    Sketcher.Constraint("Equal", 7, 17),
    Sketcher.Constraint("Diameter", 48, 4.2),
    Sketcher.Constraint("Radius", 0, 0.5),
    Sketcher.Constraint("DistanceX", 15, 1, 15, 2, 2.4),
    Sketcher.Constraint("DistanceY", 0, 3, 12, 3, 18.999999),
    Sketcher.Constraint("DistanceX", 48, 3, 0, 2, 10.0),
    Sketcher.Constraint("DistanceY", 0, 3, 3, 2, 4.0),
    Sketcher.Constraint("DistanceY", 48, 3, 12, 3, 9.499999),
    Sketcher.Constraint("DistanceX", 48, 3, 5, 2, 3.9),
    Sketcher.Constraint("DistanceX", 13, 2, 13, 1, 4.725),
    Sketcher.Constraint("DistanceX", 28, 1, 28, 2, 1.905761),
    Sketcher.Constraint("DistanceX", -1, 1, 0, 3, 64.61315),
    Sketcher.Constraint("DistanceY", 0, 3, -1, 1, 9.58102),
])
pad3 = doc.addObject("PartDesign::Pad", "Pad002")
body3.addObject(pad3)
pad3.Profile = sketch3
pad3.Length = 210

doc.recompute()
